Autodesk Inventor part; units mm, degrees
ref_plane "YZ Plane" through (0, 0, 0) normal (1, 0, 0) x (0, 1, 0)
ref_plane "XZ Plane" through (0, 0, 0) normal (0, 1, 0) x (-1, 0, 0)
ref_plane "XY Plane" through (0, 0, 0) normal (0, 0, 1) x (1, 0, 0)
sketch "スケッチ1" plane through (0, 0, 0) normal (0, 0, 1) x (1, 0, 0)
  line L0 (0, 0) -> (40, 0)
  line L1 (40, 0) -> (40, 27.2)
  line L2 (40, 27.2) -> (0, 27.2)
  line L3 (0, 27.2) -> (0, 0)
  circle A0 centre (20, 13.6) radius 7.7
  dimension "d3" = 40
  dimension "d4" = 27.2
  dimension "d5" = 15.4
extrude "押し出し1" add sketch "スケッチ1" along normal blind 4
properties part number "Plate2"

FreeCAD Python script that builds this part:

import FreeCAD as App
import Part
import Sketcher


def add_polygon(sketch, points):
    """Adds a closed chain of lines whose ends are joined by coincident constraints."""
    first, n = sketch.GeometryCount, len(points)
    for a, b in zip(points, points[1:] + points[:1]):
        sketch.addGeometry(Part.LineSegment(App.Vector(*a, 0), App.Vector(*b, 0)), False)
    for i in range(n):
        sketch.addConstraint(Sketcher.Constraint("Coincident", first + i, 2, first + (i + 1) % n, 1))

doc = App.newDocument("Part")
params = doc.addObject("Spreadsheet::Sheet", "Params")
for row, (alias, value) in enumerate([
    ("sketch1_diameter", "15.4 mm"),
    ("sketch1_width", "40 mm"),
    ("sketch1_height", "27.2 mm"),
    ("pad1_length", "4 mm"),
], start=1):
    params.set(f"A{row}", alias)
    params.set(f"B{row}", "=" + value)
    params.setAlias(f"B{row}", alias)

body = doc.addObject("PartDesign::Body", "Body")

# Sketch on XY plane
sketch1 = body.newObject("Sketcher::SketchObject", "Sketch")
sketch1.AttachmentSupport = (doc.getObject("XY_Plane"), [""])
sketch1.MapMode = "FlatFace"
add_polygon(sketch1, [(0, 27.2), (0, 0), (40, 0), (40, 27.2)])  # lines 0-3
sketch1.addGeometry(Part.Circle(App.Vector(20, 13.6, 0), App.Vector(0, 0, 1), 7.7), False)  # 4
sketch1.addConstraint([
    Sketcher.Constraint("Vertical", 0),
    Sketcher.Constraint("Horizontal", 1),
    Sketcher.Constraint("Vertical", 2),
    Sketcher.Constraint("Horizontal", 3),
    Sketcher.Constraint("Coincident", 0, 2, -1, 1),
    Sketcher.Constraint("Diameter", 4, 15.4),
    Sketcher.Constraint("DistanceX", 1, 1, 1, 2, 40.0),
    Sketcher.Constraint("DistanceY", 0, 2, 0, 1, 27.2),
    Sketcher.Constraint("DistanceX", -1, 1, 4, 3, 20.0),
    Sketcher.Constraint("DistanceY", -1, 1, 4, 3, 13.6),
])
sketch1.setExpression("Constraints[9]", "Params.sketch1_diameter")
sketch1.setExpression("Constraints[10]", "Params.sketch1_width")
sketch1.setExpression("Constraints[11]", "Params.sketch1_height")
pad1 = body.newObject("PartDesign::Pad", "Pad")
pad1.Profile = sketch1
pad1.setExpression("Length", "Params.pad1_length")

doc.recompute()
